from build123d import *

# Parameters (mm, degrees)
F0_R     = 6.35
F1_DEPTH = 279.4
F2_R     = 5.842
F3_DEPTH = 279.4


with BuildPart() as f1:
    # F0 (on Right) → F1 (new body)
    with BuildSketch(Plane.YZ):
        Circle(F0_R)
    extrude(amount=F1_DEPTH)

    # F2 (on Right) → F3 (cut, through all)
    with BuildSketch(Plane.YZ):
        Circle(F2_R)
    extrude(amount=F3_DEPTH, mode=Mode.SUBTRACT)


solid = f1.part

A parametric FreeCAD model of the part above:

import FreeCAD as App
import Part
import Sketcher
from FreeCAD import Vector
Q = App.Units.Quantity

doc = App.newDocument("Part")
body = doc.addObject("PartDesign::Body", "Body")

# Sketch on YZ plane
sketch1 = body.newObject("Sketcher::SketchObject", "Sketch")
sketch1.AttachmentSupport = (doc.getObject("YZ_Plane"), [""])
sketch1.MapMode = "FlatFace"
sketch1.addGeometry(Part.Circle(Vector(0, 0, 0), Vector(0, 0, 1), 6), False)
sketch1.addConstraint([
    Sketcher.Constraint("Coincident", 0, 3, -1, 1),
    Sketcher.Constraint("Diameter", 0, Q("0.5 in")),
])
pad1 = body.newObject("PartDesign::Pad", "Pad")
pad1.Profile = sketch1
pad1.Length = Q("11 in")

# Sketch on YZ plane
sketch2 = body.newObject("Sketcher::SketchObject", "Sketch001")
sketch2.AttachmentSupport = (doc.getObject("YZ_Plane"), [""])
sketch2.MapMode = "FlatFace"
sketch2.addGeometry(Part.Circle(Vector(0, 0, 0), Vector(0, 0, 1), 6), False)
sketch2.addConstraint([
    Sketcher.Constraint("Coincident", 0, 3, -1, 1),
    Sketcher.Constraint("Diameter", 0, Q("0.46 in")),
])
pocket1 = body.newObject("PartDesign::Pocket", "Pocket")
pocket1.Profile = sketch2
pocket1.Type = "ThroughAll"
pocket1.Reversed = True

doc.recompute()
